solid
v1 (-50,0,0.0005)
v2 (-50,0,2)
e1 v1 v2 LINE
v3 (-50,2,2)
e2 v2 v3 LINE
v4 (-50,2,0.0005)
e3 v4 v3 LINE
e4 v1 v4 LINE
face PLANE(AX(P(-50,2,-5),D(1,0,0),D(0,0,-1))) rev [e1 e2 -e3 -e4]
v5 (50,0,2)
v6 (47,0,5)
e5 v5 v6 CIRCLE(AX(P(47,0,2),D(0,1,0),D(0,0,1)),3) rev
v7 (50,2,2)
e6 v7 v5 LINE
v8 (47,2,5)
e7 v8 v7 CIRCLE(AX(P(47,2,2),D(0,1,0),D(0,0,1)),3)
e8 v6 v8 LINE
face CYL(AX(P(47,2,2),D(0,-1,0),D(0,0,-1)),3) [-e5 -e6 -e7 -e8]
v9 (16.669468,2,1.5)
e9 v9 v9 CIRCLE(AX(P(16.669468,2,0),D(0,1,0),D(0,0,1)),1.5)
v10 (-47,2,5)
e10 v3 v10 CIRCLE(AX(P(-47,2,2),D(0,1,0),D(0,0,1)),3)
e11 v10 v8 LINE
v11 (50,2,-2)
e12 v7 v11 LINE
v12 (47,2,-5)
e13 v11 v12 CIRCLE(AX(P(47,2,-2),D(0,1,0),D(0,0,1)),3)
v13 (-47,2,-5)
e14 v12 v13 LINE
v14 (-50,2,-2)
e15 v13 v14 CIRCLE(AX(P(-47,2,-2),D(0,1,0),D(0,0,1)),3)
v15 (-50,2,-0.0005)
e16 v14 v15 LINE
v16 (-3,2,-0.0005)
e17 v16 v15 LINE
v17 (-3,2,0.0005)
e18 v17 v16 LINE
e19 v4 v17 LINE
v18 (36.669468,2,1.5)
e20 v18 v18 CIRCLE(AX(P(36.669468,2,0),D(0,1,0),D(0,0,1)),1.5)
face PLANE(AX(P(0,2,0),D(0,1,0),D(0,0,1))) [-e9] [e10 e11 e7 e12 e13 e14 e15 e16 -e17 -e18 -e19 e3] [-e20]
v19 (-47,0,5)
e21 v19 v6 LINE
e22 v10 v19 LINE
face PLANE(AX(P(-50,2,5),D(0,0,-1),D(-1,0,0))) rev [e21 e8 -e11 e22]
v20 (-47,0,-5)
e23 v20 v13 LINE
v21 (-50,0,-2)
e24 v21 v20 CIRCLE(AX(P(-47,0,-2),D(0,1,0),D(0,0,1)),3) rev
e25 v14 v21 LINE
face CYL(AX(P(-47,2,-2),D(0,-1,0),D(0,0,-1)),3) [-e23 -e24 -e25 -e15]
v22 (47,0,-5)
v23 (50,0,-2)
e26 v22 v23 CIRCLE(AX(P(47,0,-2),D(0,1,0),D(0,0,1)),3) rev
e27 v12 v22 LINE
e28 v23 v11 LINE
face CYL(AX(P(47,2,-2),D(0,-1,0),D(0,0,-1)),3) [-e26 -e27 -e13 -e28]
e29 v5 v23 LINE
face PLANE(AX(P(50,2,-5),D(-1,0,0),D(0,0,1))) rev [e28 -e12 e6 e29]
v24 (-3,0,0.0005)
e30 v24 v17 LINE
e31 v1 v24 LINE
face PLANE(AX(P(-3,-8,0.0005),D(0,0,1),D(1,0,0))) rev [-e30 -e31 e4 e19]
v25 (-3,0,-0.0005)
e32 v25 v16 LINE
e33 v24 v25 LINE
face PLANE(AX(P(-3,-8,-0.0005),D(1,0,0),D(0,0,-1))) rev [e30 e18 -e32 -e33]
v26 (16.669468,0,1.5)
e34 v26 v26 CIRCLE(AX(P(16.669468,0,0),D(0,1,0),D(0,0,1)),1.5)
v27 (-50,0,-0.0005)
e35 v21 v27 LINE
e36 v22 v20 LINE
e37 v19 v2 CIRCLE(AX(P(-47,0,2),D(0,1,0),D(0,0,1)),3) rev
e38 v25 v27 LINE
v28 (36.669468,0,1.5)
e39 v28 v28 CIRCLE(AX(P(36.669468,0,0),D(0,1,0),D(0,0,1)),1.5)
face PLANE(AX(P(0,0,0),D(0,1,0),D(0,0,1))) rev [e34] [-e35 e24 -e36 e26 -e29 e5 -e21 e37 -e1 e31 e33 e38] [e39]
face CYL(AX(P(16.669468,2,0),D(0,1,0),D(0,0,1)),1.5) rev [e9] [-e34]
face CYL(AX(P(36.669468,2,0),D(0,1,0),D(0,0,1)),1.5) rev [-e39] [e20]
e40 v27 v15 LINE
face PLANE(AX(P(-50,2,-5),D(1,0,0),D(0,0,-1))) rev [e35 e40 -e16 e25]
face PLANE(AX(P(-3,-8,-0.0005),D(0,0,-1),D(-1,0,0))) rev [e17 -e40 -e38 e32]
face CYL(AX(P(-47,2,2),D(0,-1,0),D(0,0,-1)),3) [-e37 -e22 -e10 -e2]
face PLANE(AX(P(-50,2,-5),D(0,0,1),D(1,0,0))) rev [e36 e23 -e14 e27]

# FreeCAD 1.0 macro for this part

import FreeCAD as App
import Part
import Sketcher

V = App.Vector


def edges_at(feature, points):
    """Names of the edges that pass closest to the given points."""
    edges = feature.Shape.Edges
    near = lambda p: min(range(len(edges)), key=lambda i: edges[i].distToShape(Part.Vertex(*p))[0])
    return sorted({f"Edge{near(p) + 1}" for p in points})


def add_polygon(sketch, points):
    """Adds a closed chain of lines whose ends are joined by coincident constraints."""
    first, n = sketch.GeometryCount, len(points)
    for a, b in zip(points, points[1:] + points[:1]):
        sketch.addGeometry(Part.LineSegment(App.Vector(*a, 0), App.Vector(*b, 0)), False)
    for i in range(n):
        sketch.addConstraint(Sketcher.Constraint("Coincident", first + i, 2, first + (i + 1) % n, 1))

doc = App.newDocument("Part")
body = doc.addObject("PartDesign::Body", "Body")

# Sketch on XZ plane
sketch1 = body.newObject("Sketcher::SketchObject", "Sketch")
sketch1.AttachmentSupport = (doc.getObject("XZ_Plane"), [""])
sketch1.MapMode = "FlatFace"
add_polygon(sketch1, [(-50, -5), (-50, 5), (50, 5), (50, -5)])  # lines 0-3
sketch1.addConstraint(Sketcher.Constraint("Vertical", 0))
sketch1.addConstraint(Sketcher.Constraint("Horizontal", 1))
sketch1.addConstraint(Sketcher.Constraint("Vertical", 2))
sketch1.addConstraint(Sketcher.Constraint("Horizontal", 3))
sketch1.addConstraint(Sketcher.Constraint("Symmetric", 0, 2, 2, 2, -1, 1))
sketch1.addConstraint(Sketcher.Constraint("DistanceX", 1, 1, 1, 2, 100.0))
sketch1.addConstraint(Sketcher.Constraint("DistanceY", 0, 1, 0, 2, 10.0))
pad1 = body.newObject("PartDesign::Pad", "Pad")
pad1.Profile = sketch1
pad1.Length = 2
pad1.Reversed = True
doc.recompute()

fillet = body.newObject("PartDesign::Fillet", "Fillet")
fillet.Base = (pad1, edges_at(pad1, [
    (50, 1, 5),
    (-50, 1, 5),
    (-50, 1, -5),
    (50, 1, -5),
]))
fillet.Radius = 3

# Sketch on XZ plane
sketch2 = body.newObject("Sketcher::SketchObject", "Sketch001")
sketch2.AttachmentSupport = (doc.getObject("XZ_Plane"), [""])
sketch2.MapMode = "FlatFace"
sketch2.AttachmentOffset = App.Placement(V(0, 0, -2), App.Rotation())
sketch2.addGeometry(Part.Circle(V(36.7, 0, 0), V(0, 0, 1), 1.5), False)
sketch2.addGeometry(Part.Circle(V(16.7, 0, 0), V(0, 0, 1), 1.5), False)
sketch2.addConstraint(Sketcher.Constraint("Equal", 0, 1))
sketch2.addConstraint(Sketcher.Constraint("PointOnObject", 0, 3, -1))
sketch2.addConstraint(Sketcher.Constraint("PointOnObject", 1, 3, -1))
sketch2.addConstraint(Sketcher.Constraint("Diameter", 0, 3.0))
sketch2.addConstraint(Sketcher.Constraint("DistanceX", 1, 3, 0, 3, 20.0))
sketch2.addConstraint(Sketcher.Constraint("DistanceX", -1, 1, 0, 3, 36.669468))
doc.recompute()
hole = body.newObject("PartDesign::Hole", "Hole")
hole.Profile = sketch2
hole.ThreadType = "None"
hole.Diameter = 3
hole.DepthType = "ThroughAll"
hole.Reversed = True

# Sketch on XZ plane
sketch3 = body.newObject("Sketcher::SketchObject", "Sketch002")
sketch3.AttachmentSupport = (doc.getObject("XZ_Plane"), [""])
sketch3.MapMode = "FlatFace"
sketch3.AttachmentOffset = App.Placement(V(0, 0, -2), App.Rotation())
add_polygon(sketch3, [(-50, -0.0005), (-50, 0.0005), (-3, 0.0005), (-3, -0.0005)])  # lines 0-3
sketch3.addConstraint(Sketcher.Constraint("Vertical", 0))
sketch3.addConstraint(Sketcher.Constraint("Horizontal", 1))
sketch3.addConstraint(Sketcher.Constraint("Vertical", 2))
sketch3.addConstraint(Sketcher.Constraint("Horizontal", 3))
sketch3.addConstraint(Sketcher.Constraint("DistanceX", 1, 1, 1, 2, 47.0))
sketch3.addConstraint(Sketcher.Constraint("DistanceX", 0, 2, -1, 1, 50.0))
sketch3.addConstraint(Sketcher.Constraint("DistanceY", 0, 1, 0, 2, 0.001))
sketch3.addConstraint(Sketcher.Constraint("DistanceY", -1, 1, 0, 2, 0.0005))
pocket1 = body.newObject("PartDesign::Pocket", "Pocket")
pocket1.Profile = sketch3
pocket1.Length = 10
pocket1.Reversed = True

doc.recompute()
